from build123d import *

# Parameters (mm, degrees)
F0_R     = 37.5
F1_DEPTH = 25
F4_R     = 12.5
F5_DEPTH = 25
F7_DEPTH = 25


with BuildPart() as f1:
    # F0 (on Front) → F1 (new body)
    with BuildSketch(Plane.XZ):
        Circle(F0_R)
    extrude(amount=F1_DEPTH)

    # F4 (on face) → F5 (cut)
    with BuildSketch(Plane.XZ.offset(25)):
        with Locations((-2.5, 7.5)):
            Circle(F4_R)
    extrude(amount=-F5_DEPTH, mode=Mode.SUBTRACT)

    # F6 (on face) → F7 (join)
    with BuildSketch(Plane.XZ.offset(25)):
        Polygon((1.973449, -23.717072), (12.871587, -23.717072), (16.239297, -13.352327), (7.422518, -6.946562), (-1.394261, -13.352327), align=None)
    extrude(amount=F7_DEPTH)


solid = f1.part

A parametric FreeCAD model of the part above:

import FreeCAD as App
import Part
import Sketcher
Q = App.Units.Quantity

doc = App.newDocument("Part")
body = doc.addObject("PartDesign::Body", "Body")

sketch1 = body.newObject("Sketcher::SketchObject", "Sketch")
sketch1.AttachmentSupport = (doc.getObject("XZ_Plane"), [""])
sketch1.MapMode = "FlatFace"
sketch1.addGeometry(Part.Circle(App.Vector(0, 0, 0), App.Vector(0, 0, 1), 37.5), False)
sketch1.addConstraint([
    Sketcher.Constraint("Coincident", 0, 3, -1, 1),
    Sketcher.Constraint("Diameter", 0, Q("75 mm")),
])
pad1 = body.newObject("PartDesign::Pad", "Pad")
pad1.Profile = sketch1
pad1.Length = 25

sketch2 = body.newObject("Sketcher::SketchObject", "Sketch001")
sketch2.AttachmentSupport = (doc.getObject("XZ_Plane"), [""])
sketch2.MapMode = "FlatFace"
sketch2.AttachmentOffset = App.Placement(App.Vector(0, 0, 25), App.Rotation())
sketch2.addGeometry(Part.Circle(App.Vector(-2.5, 7.5, 0), App.Vector(0, 0, 1), 12.5), False)
sketch2.addConstraint([
    Sketcher.Constraint("Diameter", 0, Q("25 mm")),
    Sketcher.Constraint("DistanceX", 0, 3, -1, 1, Q("2.5 mm")),
    Sketcher.Constraint("DistanceY", -1, 1, 0, 3, Q("7.5 mm")),
])
pocket1 = body.newObject("PartDesign::Pocket", "Pocket")
pocket1.Profile = sketch2
pocket1.Length = 25

sketch3 = body.newObject("Sketcher::SketchObject", "Sketch002")
sketch3.AttachmentSupport = (doc.getObject("XZ_Plane"), [""])
sketch3.MapMode = "FlatFace"
sketch3.AttachmentOffset = App.Placement(App.Vector(0, 0, 25), App.Rotation())
sketch3.addGeometry([
    Part.LineSegment(App.Vector(1.973449, -23.717072, 0), App.Vector(12.871587, -23.717072, 0)),
    Part.LineSegment(App.Vector(12.871587, -23.717072, 0), App.Vector(16.239297, -13.352327, 0)),
    Part.LineSegment(App.Vector(16.239297, -13.352327, 0), App.Vector(7.422518, -6.946562, 0)),
    Part.LineSegment(App.Vector(7.422518, -6.946562, 0), App.Vector(-1.394261, -13.352327, 0)),
    Part.LineSegment(App.Vector(-1.394261, -13.352327, 0), App.Vector(1.973449, -23.717072, 0)),
], False)
sketch3.addConstraint([
    Sketcher.Constraint("Coincident", 0, 2, 1, 1),
    Sketcher.Constraint("Coincident", 1, 2, 2, 1),
    Sketcher.Constraint("Coincident", 2, 2, 3, 1),
    Sketcher.Constraint("Coincident", 3, 2, 4, 1),
    Sketcher.Constraint("Coincident", 4, 2, 0, 1),
    Sketcher.Constraint("Horizontal", 0),
    Sketcher.Constraint("Horizontal", 1, 2, 3, 2),
    Sketcher.Constraint("Equal", 1, 2),
    Sketcher.Constraint("Equal", 2, 3),
    Sketcher.Constraint("Equal", 3, 4),
    Sketcher.Constraint("Angle", 1, Q("71.999999 deg")),
    Sketcher.Constraint("Angle", 2, Q("144 deg")),
    Sketcher.Constraint("Distance", 2, Q("10.898138 mm")),
    Sketcher.Constraint("DistanceX", -1, 1, 2, 2, Q("7.422518 mm")),
    Sketcher.Constraint("DistanceY", 0, 2, -1, 1, Q("23.717072 mm")),
])
pad2 = body.newObject("PartDesign::Pad", "Pad001")
pad2.Profile = sketch3
pad2.Length = 25

doc.recompute()
